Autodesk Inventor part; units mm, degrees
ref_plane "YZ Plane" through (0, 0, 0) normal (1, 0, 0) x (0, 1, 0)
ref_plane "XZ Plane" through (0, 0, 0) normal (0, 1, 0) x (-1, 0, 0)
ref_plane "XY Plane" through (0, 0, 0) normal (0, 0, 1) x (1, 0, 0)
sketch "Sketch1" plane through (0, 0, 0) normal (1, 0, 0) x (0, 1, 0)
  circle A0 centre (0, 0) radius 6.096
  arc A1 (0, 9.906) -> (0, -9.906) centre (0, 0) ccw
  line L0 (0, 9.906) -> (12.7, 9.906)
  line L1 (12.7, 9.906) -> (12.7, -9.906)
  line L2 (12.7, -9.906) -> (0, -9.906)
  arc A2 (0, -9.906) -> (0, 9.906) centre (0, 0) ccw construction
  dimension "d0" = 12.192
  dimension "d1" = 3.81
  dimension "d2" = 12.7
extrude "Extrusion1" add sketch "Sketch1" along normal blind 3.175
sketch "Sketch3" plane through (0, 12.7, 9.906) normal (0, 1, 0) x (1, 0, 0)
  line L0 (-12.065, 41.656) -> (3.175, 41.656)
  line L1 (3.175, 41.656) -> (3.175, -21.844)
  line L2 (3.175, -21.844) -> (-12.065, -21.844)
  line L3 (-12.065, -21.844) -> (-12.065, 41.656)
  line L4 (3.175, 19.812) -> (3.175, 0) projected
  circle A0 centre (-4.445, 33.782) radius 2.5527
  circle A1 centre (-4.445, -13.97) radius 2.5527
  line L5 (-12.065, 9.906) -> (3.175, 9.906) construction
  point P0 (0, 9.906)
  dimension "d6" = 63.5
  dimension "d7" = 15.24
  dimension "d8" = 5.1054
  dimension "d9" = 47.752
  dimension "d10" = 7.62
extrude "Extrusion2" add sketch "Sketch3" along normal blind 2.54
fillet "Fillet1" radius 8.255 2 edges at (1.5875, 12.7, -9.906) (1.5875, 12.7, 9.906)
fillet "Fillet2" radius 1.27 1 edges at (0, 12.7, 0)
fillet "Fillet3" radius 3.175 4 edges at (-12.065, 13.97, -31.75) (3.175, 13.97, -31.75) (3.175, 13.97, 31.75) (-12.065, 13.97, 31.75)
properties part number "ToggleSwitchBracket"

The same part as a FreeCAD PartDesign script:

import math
import FreeCAD as App
import Part
import Sketcher
Q = App.Units.Quantity


def edges_at(feature, points):
    """Names of the edges that pass closest to the given points."""
    edges = feature.Shape.Edges
    near = lambda p: min(range(len(edges)), key=lambda i: edges[i].distToShape(Part.Vertex(*p))[0])
    return sorted({f"Edge{near(p) + 1}" for p in points})


def add_polygon(sketch, points):
    """Adds a closed chain of lines whose ends are joined by coincident constraints."""
    first, n = sketch.GeometryCount, len(points)
    for a, b in zip(points, points[1:] + points[:1]):
        sketch.addGeometry(Part.LineSegment(App.Vector(*a, 0), App.Vector(*b, 0)), False)
    for i in range(n):
        sketch.addConstraint(Sketcher.Constraint("Coincident", first + i, 2, first + (i + 1) % n, 1))

doc = App.newDocument("Part")
params = doc.addObject("Spreadsheet::Sheet", "Params")
for row, (alias, value) in enumerate([
    ("sketch1_diameter", "0.48 in"),
    ("sketch1_width", "0.5 in"),
    ("sketch1_radius", "0.39 in"),
    ("pad1_length", "0.125 in"),
    ("sketch2_diameter", "0.201 in"),
    ("sketch2_width", "0.6 in"),
    ("sketch2_height", "2.5 in"),
    ("pad2_length", "0.1 in"),
    ("fillet_radius", "0.325 in"),
    ("fillet2_radius", "0.05 in"),
    ("fillet3_radius", "0.125 in"),
], start=1):
    params.set(f"A{row}", alias)
    params.set(f"B{row}", "=" + value)
    params.setAlias(f"B{row}", alias)

body = doc.addObject("PartDesign::Body", "Body")

# Sketch on YZ plane
sketch1 = body.newObject("Sketcher::SketchObject", "Sketch")
sketch1.AttachmentSupport = (doc.getObject("YZ_Plane"), [""])
sketch1.MapMode = "FlatFace"
sketch1.addGeometry([
    Part.LineSegment(App.Vector(13, 10, 0), App.Vector(0, 10, 0)),  # 0
    Part.ArcOfCircle(Part.Circle(App.Vector(0, 0, 0), App.Vector(0, 0, 1), 10), math.radians(90), math.radians(270)),  # 1
    Part.LineSegment(App.Vector(0, -10, 0), App.Vector(13, -10, 0)),  # 2
    Part.LineSegment(App.Vector(13, -10, 0), App.Vector(13, 10, 0)),  # 3
    Part.Circle(App.Vector(0, 0, 0), App.Vector(0, 0, 1), 6),  # 4
], False)
sketch1.addConstraint([
    Sketcher.Constraint("Tangent", 0, 2, 1, 1),
    Sketcher.Constraint("Tangent", 1, 2, 2, 1),
    Sketcher.Constraint("Coincident", 2, 2, 3, 1),
    Sketcher.Constraint("Coincident", 3, 2, 0, 1),
    Sketcher.Constraint("Horizontal", 0),
    Sketcher.Constraint("Horizontal", 2),
    Sketcher.Constraint("Vertical", 3),
    Sketcher.Constraint("Coincident", 1, 3, -1, 1),
    Sketcher.Constraint("Coincident", 4, 3, -1, 1),
    Sketcher.Constraint("Diameter", 4, Q("0.48 in")),
    Sketcher.Constraint("DistanceX", 0, 2, 0, 1, Q("0.5 in")),
    Sketcher.Constraint("Radius", 1, Q("0.39 in")),
])
sketch1.setExpression("Constraints[9]", "Params.sketch1_diameter")
sketch1.setExpression("Constraints[10]", "Params.sketch1_width")
sketch1.setExpression("Constraints[11]", "Params.sketch1_radius")
pad1 = body.newObject("PartDesign::Pad", "Pad")
pad1.Profile = sketch1
pad1.setExpression("Length", "Params.pad1_length")

# Sketch on XZ plane
sketch2 = body.newObject("Sketcher::SketchObject", "Sketch001")
sketch2.AttachmentSupport = (doc.getObject("XZ_Plane"), [""])
sketch2.MapMode = "FlatFace"
sketch2.AttachmentOffset = App.Placement(App.Vector(0, 0, -0.5 * 25.4), App.Rotation())
add_polygon(sketch2, [(3.2, -31.8), (-12.1, -31.8), (-12.1, 31.8), (3.2, 31.8)])  # lines 0-3
sketch2.addGeometry(Part.Circle(App.Vector(-4.4, 23.9, 0), App.Vector(0, 0, 1), 2.6), False)  # 4
sketch2.addGeometry(Part.Circle(App.Vector(-4.4, -23.9, 0), App.Vector(0, 0, 1), 2.6), False)  # 5
sketch2.addConstraint([
    Sketcher.Constraint("Horizontal", 0),
    Sketcher.Constraint("Vertical", 1),
    Sketcher.Constraint("Horizontal", 2),
    Sketcher.Constraint("Vertical", 3),
    Sketcher.Constraint("Equal", 4, 5),
    Sketcher.Constraint("Symmetric", 4, 3, 5, 3, -1),
    Sketcher.Constraint("Diameter", 4, Q("0.201 in")),
    Sketcher.Constraint("DistanceX", 0, 2, 0, 1, Q("0.6 in")),
    Sketcher.Constraint("DistanceY", 1, 1, 1, 2, Q("2.5 in")),
    Sketcher.Constraint("DistanceX", 0, 2, 5, 3, Q("0.3 in")),
    Sketcher.Constraint("DistanceY", 5, 3, 4, 3, Q("1.88 in")),
    Sketcher.Constraint("DistanceY", 0, 2, -1, 1, Q("1.25 in")),
    Sketcher.Constraint("DistanceX", 4, 3, -1, 1, Q("0.175 in")),
])
sketch2.setExpression("Constraints[10]", "Params.sketch2_diameter")
sketch2.setExpression("Constraints[11]", "Params.sketch2_width")
sketch2.setExpression("Constraints[12]", "Params.sketch2_height")
pad2 = body.newObject("PartDesign::Pad", "Pad001")
pad2.Profile = sketch2
pad2.setExpression("Length", "Params.pad2_length")
pad2.Reversed = True
doc.recompute()

fillet = body.newObject("PartDesign::Fillet", "Fillet")
fillet.Base = (pad2, edges_at(pad2, [(1.587, 12.7, -9.906), (1.587, 12.7, 9.906)]))
fillet.setExpression("Radius", "Params.fillet_radius")
doc.recompute()

fillet2 = body.newObject("PartDesign::Fillet", "Fillet001")
fillet2.Base = (fillet, edges_at(fillet, [(0, 12.7, 0)]))
fillet2.setExpression("Radius", "Params.fillet2_radius")
doc.recompute()

fillet3 = body.newObject("PartDesign::Fillet", "Fillet002")
fillet3.Base = (fillet2, edges_at(fillet2, [
    (-12.065, 13.97, -31.75),
    (3.175, 13.97, -31.75),
    (3.175, 13.97, 31.75),
    (-12.065, 13.97, 31.75),
]))
fillet3.setExpression("Radius", "Params.fillet3_radius")

doc.recompute()
